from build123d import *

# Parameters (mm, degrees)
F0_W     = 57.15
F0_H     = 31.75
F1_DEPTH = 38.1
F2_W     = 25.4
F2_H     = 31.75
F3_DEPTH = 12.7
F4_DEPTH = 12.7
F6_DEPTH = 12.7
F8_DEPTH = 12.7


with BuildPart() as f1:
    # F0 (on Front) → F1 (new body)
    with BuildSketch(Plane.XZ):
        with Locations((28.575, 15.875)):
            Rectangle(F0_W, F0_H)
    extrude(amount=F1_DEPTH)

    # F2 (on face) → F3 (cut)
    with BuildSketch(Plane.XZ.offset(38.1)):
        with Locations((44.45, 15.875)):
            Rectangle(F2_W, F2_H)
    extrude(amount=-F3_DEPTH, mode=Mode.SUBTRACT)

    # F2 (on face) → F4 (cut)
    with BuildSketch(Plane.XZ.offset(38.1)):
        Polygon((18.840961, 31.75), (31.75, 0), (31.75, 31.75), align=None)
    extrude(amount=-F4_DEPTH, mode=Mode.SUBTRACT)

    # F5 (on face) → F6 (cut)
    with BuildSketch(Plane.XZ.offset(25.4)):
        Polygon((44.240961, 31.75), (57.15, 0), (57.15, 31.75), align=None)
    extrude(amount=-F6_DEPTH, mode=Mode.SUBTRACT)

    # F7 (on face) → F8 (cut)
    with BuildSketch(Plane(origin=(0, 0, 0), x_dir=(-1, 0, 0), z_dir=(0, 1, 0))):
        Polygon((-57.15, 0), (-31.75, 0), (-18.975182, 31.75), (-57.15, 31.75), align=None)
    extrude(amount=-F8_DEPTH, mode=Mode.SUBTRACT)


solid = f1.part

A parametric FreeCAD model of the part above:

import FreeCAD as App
import Part
import Sketcher
from FreeCAD import Vector
Q = App.Units.Quantity


def add_polygon(sketch, points):
    """Adds a closed chain of lines whose ends are joined by coincident constraints."""
    first, n = sketch.GeometryCount, len(points)
    for a, b in zip(points, points[1:] + points[:1]):
        sketch.addGeometry(Part.LineSegment(App.Vector(*a, 0), App.Vector(*b, 0)), False)
    for i in range(n):
        sketch.addConstraint(Sketcher.Constraint("Coincident", first + i, 2, first + (i + 1) % n, 1))

doc = App.newDocument("Part")
body = doc.addObject("PartDesign::Body", "Body")

sketch1 = body.newObject("Sketcher::SketchObject", "Sketch")
sketch1.AttachmentSupport = (doc.getObject("XZ_Plane"), [""])
sketch1.MapMode = "FlatFace"
add_polygon(sketch1, [(0, 32), (0, 0), (57, 0), (57, 32)])
sketch1.addConstraint(Sketcher.Constraint("Vertical", 0))
sketch1.addConstraint(Sketcher.Constraint("Horizontal", 1))
sketch1.addConstraint(Sketcher.Constraint("Vertical", 2))
sketch1.addConstraint(Sketcher.Constraint("Horizontal", 3))
sketch1.addConstraint(Sketcher.Constraint("Coincident", 0, 2, -1, 1))
sketch1.addConstraint(Sketcher.Constraint("DistanceX", 1, 1, 1, 2, Q("2.25 in")))
sketch1.addConstraint(Sketcher.Constraint("DistanceY", 0, 2, 0, 1, Q("1.25 in")))
pad1 = body.newObject("PartDesign::Pad", "Pad")
pad1.Profile = sketch1
pad1.Length = Q("1.5 in")

sketch2 = body.newObject("Sketcher::SketchObject", "Sketch001")
sketch2.AttachmentSupport = (doc.getObject("XZ_Plane"), [""])
sketch2.MapMode = "FlatFace"
sketch2.AttachmentOffset = App.Placement(Vector(0, 0, 1.5 * 25.4), App.Rotation())
add_polygon(sketch2, [(32, 32), (32, 0), (57, 0), (57, 32)])
sketch2.addConstraint(Sketcher.Constraint("Vertical", 0))
sketch2.addConstraint(Sketcher.Constraint("Horizontal", 1))
sketch2.addConstraint(Sketcher.Constraint("Vertical", 2))
sketch2.addConstraint(Sketcher.Constraint("Horizontal", 3))
sketch2.addConstraint(Sketcher.Constraint("PointOnObject", 0, 2, -1))
sketch2.addConstraint(Sketcher.Constraint("DistanceX", 1, 1, 1, 2, Q("1 in")))
sketch2.addConstraint(Sketcher.Constraint("DistanceY", 0, 2, 0, 1, Q("1.25 in")))
sketch2.addConstraint(Sketcher.Constraint("DistanceX", -1, 1, 0, 2, Q("1.25 in")))
pocket1 = body.newObject("PartDesign::Pocket", "Pocket")
pocket1.Profile = sketch2
pocket1.Length = Q("0.5 in")

sketch3 = body.newObject("Sketcher::SketchObject", "Sketch002")
sketch3.AttachmentSupport = (doc.getObject("XZ_Plane"), [""])
sketch3.MapMode = "FlatFace"
sketch3.AttachmentOffset = App.Placement(Vector(0, 0, 1.5 * 25.4), App.Rotation())
add_polygon(sketch3, [(19, 32), (32, 0), (32, 32)])
sketch3.addConstraint(Sketcher.Constraint("Vertical", 1))
sketch3.addConstraint(Sketcher.Constraint("Horizontal", 2))
sketch3.addConstraint(Sketcher.Constraint("PointOnObject", 0, 2, -1))
sketch3.addConstraint(Sketcher.Constraint("DistanceY", 1, 1, 1, 2, Q("1.25 in")))
sketch3.addConstraint(Sketcher.Constraint("DistanceX", -1, 1, 0, 2, Q("1.25 in")))
sketch3.addConstraint(Sketcher.Constraint("DistanceX", 2, 2, 2, 1, Q("12.909039 mm")))
pocket2 = body.newObject("PartDesign::Pocket", "Pocket001")
pocket2.Profile = sketch3
pocket2.Length = Q("0.5 in")

sketch4 = body.newObject("Sketcher::SketchObject", "Sketch003")
sketch4.AttachmentSupport = (doc.getObject("XZ_Plane"), [""])
sketch4.MapMode = "FlatFace"
sketch4.AttachmentOffset = App.Placement(Vector(0, 0, 1 * 25.4), App.Rotation())
add_polygon(sketch4, [(44, 32), (57, 0), (57, 32)])
sketch4.addConstraint(Sketcher.Constraint("Vertical", 1))
sketch4.addConstraint(Sketcher.Constraint("Horizontal", 2))
sketch4.addConstraint(Sketcher.Constraint("PointOnObject", 0, 2, -1))
sketch4.addConstraint(Sketcher.Constraint("DistanceY", 1, 1, 1, 2, Q("1.25 in")))
sketch4.addConstraint(Sketcher.Constraint("DistanceX", -1, 1, 0, 2, Q("2.25 in")))
sketch4.addConstraint(Sketcher.Constraint("DistanceX", 2, 2, 2, 1, Q("12.909039 mm")))
pocket3 = body.newObject("PartDesign::Pocket", "Pocket002")
pocket3.Profile = sketch4
pocket3.Length = Q("0.5 in")

sketch5 = body.newObject("Sketcher::SketchObject", "Sketch004")
sketch5.AttachmentSupport = (doc.getObject("XZ_Plane"), [""])
sketch5.MapMode = "FlatFace"
add_polygon(sketch5, [(57, 0), (32, 0), (19, 32), (57, 32)])
sketch5.addConstraint(Sketcher.Constraint("Horizontal", 0))
sketch5.addConstraint(Sketcher.Constraint("Horizontal", 2))
sketch5.addConstraint(Sketcher.Constraint("Vertical", 3))
sketch5.addConstraint(Sketcher.Constraint("PointOnObject", 0, 2, -1))
sketch5.addConstraint(Sketcher.Constraint("DistanceX", 0, 2, 0, 1, Q("1 in")))
sketch5.addConstraint(Sketcher.Constraint("DistanceY", 3, 2, 3, 1, Q("1.25 in")))
sketch5.addConstraint(Sketcher.Constraint("DistanceX", -1, 1, 0, 2, Q("1.25 in")))
sketch5.addConstraint(Sketcher.Constraint("DistanceX", 2, 1, 2, 2, Q("38.174818 mm")))
pocket4 = body.newObject("PartDesign::Pocket", "Pocket003")
pocket4.Profile = sketch5
pocket4.Length = Q("0.5 in")
pocket4.Reversed = True

doc.recompute()
